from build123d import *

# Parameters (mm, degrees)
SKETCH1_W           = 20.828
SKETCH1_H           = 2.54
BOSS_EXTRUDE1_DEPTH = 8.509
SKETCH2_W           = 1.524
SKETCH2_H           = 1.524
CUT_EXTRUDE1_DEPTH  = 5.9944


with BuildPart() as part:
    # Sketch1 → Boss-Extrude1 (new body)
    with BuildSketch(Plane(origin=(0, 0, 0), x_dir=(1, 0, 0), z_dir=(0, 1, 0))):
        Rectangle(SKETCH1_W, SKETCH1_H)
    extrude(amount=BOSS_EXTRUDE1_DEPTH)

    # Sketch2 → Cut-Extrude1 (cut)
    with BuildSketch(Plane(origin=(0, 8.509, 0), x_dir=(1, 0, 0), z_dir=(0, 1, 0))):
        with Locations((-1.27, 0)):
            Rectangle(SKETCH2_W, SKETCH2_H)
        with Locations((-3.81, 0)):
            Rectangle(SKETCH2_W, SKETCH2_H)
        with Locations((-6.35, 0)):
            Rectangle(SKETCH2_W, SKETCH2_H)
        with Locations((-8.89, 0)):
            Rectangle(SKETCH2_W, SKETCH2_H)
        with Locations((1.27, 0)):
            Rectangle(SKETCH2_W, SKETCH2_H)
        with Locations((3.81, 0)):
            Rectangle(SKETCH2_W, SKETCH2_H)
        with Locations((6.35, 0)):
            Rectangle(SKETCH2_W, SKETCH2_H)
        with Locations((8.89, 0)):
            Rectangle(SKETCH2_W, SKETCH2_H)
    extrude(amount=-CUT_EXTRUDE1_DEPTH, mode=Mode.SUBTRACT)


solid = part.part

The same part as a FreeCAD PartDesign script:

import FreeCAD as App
import Part
import Sketcher

V = App.Vector
Q = App.Units.Quantity

doc = App.newDocument("Part")
body = doc.addObject("PartDesign::Body", "Body")

# Sketch on XZ plane
sketch1 = body.newObject("Sketcher::SketchObject", "Sketch")
sketch1.AttachmentSupport = (doc.getObject("XZ_Plane"), [""])
sketch1.MapMode = "FlatFace"
sketch1.addGeometry(Part.LineSegment(V(-10.4, -1.3, 0), V(-10.4, 1.3, 0)), False)
sketch1.addGeometry(Part.LineSegment(V(-10.4, 1.3, 0), V(10.4, 1.3, 0)), False)
sketch1.addGeometry(Part.LineSegment(V(10.4, 1.3, 0), V(10.4, -1.3, 0)), False)
sketch1.addGeometry(Part.LineSegment(V(10.4, -1.3, 0), V(-10.4, -1.3, 0)), False)
sketch1.addConstraint(Sketcher.Constraint("Coincident", 0, 2, 1, 1))
sketch1.addConstraint(Sketcher.Constraint("Coincident", 1, 2, 2, 1))
sketch1.addConstraint(Sketcher.Constraint("Coincident", 2, 2, 3, 1))
sketch1.addConstraint(Sketcher.Constraint("Coincident", 3, 2, 0, 1))
sketch1.addConstraint(Sketcher.Constraint("Vertical", 0))
sketch1.addConstraint(Sketcher.Constraint("Horizontal", 1))
sketch1.addConstraint(Sketcher.Constraint("Vertical", 2))
sketch1.addConstraint(Sketcher.Constraint("Horizontal", 3))
sketch1.addConstraint(Sketcher.Constraint("Symmetric", 0, 2, 2, 2, -1, 1))
sketch1.addConstraint(Sketcher.Constraint("DistanceY", 0, 1, 0, 2, Q("0.1 in")))
sketch1.addConstraint(Sketcher.Constraint("DistanceX", 1, 1, 1, 2, Q("0.82 in")))
pad1 = body.newObject("PartDesign::Pad", "Pad")
pad1.Profile = sketch1
pad1.Length = Q("0.335 in")
pad1.Reversed = True

# Sketch on XZ plane
sketch2 = body.newObject("Sketcher::SketchObject", "Sketch001")
sketch2.AttachmentSupport = (doc.getObject("XZ_Plane"), [""])
sketch2.MapMode = "FlatFace"
sketch2.AttachmentOffset = App.Placement(V(0, 0, -0.335 * 25.4), App.Rotation())
sketch2.addGeometry(Part.LineSegment(V(-2, -0.8, 0), V(-2, 0.8, 0)), False)
sketch2.addGeometry(Part.LineSegment(V(-2, 0.8, 0), V(-0.5, 0.8, 0)), False)
sketch2.addGeometry(Part.LineSegment(V(-0.5, 0.8, 0), V(-0.5, -0.8, 0)), False)
sketch2.addGeometry(Part.LineSegment(V(-0.5, -0.8, 0), V(-2, -0.8, 0)), False)
sketch2.addGeometry(Part.LineSegment(V(-4.6, -0.8, 0), V(-4.6, 0.8, 0)), False)
sketch2.addGeometry(Part.LineSegment(V(-4.6, 0.8, 0), V(-3, 0.8, 0)), False)
sketch2.addGeometry(Part.LineSegment(V(-3, 0.8, 0), V(-3, -0.8, 0)), False)
sketch2.addGeometry(Part.LineSegment(V(-3, -0.8, 0), V(-4.6, -0.8, 0)), False)
sketch2.addGeometry(Part.LineSegment(V(-7.1, -0.8, 0), V(-7.1, 0.8, 0)), False)
sketch2.addGeometry(Part.LineSegment(V(-7.1, 0.8, 0), V(-5.6, 0.8, 0)), False)
sketch2.addGeometry(Part.LineSegment(V(-5.6, 0.8, 0), V(-5.6, -0.8, 0)), False)
sketch2.addGeometry(Part.LineSegment(V(-5.6, -0.8, 0), V(-7.1, -0.8, 0)), False)
sketch2.addGeometry(Part.LineSegment(V(-9.7, -0.8, 0), V(-9.7, 0.8, 0)), False)
sketch2.addGeometry(Part.LineSegment(V(-9.7, 0.8, 0), V(-8.1, 0.8, 0)), False)
sketch2.addGeometry(Part.LineSegment(V(-8.1, 0.8, 0), V(-8.1, -0.8, 0)), False)
sketch2.addGeometry(Part.LineSegment(V(-8.1, -0.8, 0), V(-9.7, -0.8, 0)), False)
sketch2.addGeometry(Part.LineSegment(V(0.5, -0.8, 0), V(0.5, 0.8, 0)), False)
sketch2.addGeometry(Part.LineSegment(V(0.5, 0.8, 0), V(2, 0.8, 0)), False)
sketch2.addGeometry(Part.LineSegment(V(2, 0.8, 0), V(2, -0.8, 0)), False)
sketch2.addGeometry(Part.LineSegment(V(2, -0.8, 0), V(0.5, -0.8, 0)), False)
sketch2.addGeometry(Part.LineSegment(V(3, -0.8, 0), V(3, 0.8, 0)), False)
sketch2.addGeometry(Part.LineSegment(V(3, 0.8, 0), V(4.6, 0.8, 0)), False)
sketch2.addGeometry(Part.LineSegment(V(4.6, 0.8, 0), V(4.6, -0.8, 0)), False)
sketch2.addGeometry(Part.LineSegment(V(4.6, -0.8, 0), V(3, -0.8, 0)), False)
sketch2.addGeometry(Part.LineSegment(V(5.6, -0.8, 0), V(5.6, 0.8, 0)), False)
sketch2.addGeometry(Part.LineSegment(V(5.6, 0.8, 0), V(7.1, 0.8, 0)), False)
sketch2.addGeometry(Part.LineSegment(V(7.1, 0.8, 0), V(7.1, -0.8, 0)), False)
sketch2.addGeometry(Part.LineSegment(V(7.1, -0.8, 0), V(5.6, -0.8, 0)), False)
sketch2.addGeometry(Part.LineSegment(V(8.1, -0.8, 0), V(8.1, 0.8, 0)), False)
sketch2.addGeometry(Part.LineSegment(V(8.1, 0.8, 0), V(9.7, 0.8, 0)), False)
sketch2.addGeometry(Part.LineSegment(V(9.7, 0.8, 0), V(9.7, -0.8, 0)), False)
sketch2.addGeometry(Part.LineSegment(V(9.7, -0.8, 0), V(8.1, -0.8, 0)), False)
sketch2.addConstraint(Sketcher.Constraint("Coincident", 0, 2, 1, 1))
sketch2.addConstraint(Sketcher.Constraint("Coincident", 1, 2, 2, 1))
sketch2.addConstraint(Sketcher.Constraint("Coincident", 2, 2, 3, 1))
sketch2.addConstraint(Sketcher.Constraint("Coincident", 3, 2, 0, 1))
sketch2.addConstraint(Sketcher.Constraint("Coincident", 4, 2, 5, 1))
sketch2.addConstraint(Sketcher.Constraint("Coincident", 5, 2, 6, 1))
sketch2.addConstraint(Sketcher.Constraint("Coincident", 6, 2, 7, 1))
sketch2.addConstraint(Sketcher.Constraint("Coincident", 7, 2, 4, 1))
sketch2.addConstraint(Sketcher.Constraint("Coincident", 8, 2, 9, 1))
sketch2.addConstraint(Sketcher.Constraint("Coincident", 9, 2, 10, 1))
sketch2.addConstraint(Sketcher.Constraint("Coincident", 10, 2, 11, 1))
sketch2.addConstraint(Sketcher.Constraint("Coincident", 11, 2, 8, 1))
sketch2.addConstraint(Sketcher.Constraint("Coincident", 12, 2, 13, 1))
sketch2.addConstraint(Sketcher.Constraint("Coincident", 13, 2, 14, 1))
sketch2.addConstraint(Sketcher.Constraint("Coincident", 14, 2, 15, 1))
sketch2.addConstraint(Sketcher.Constraint("Coincident", 15, 2, 12, 1))
sketch2.addConstraint(Sketcher.Constraint("Coincident", 16, 2, 17, 1))
sketch2.addConstraint(Sketcher.Constraint("Coincident", 17, 2, 18, 1))
sketch2.addConstraint(Sketcher.Constraint("Coincident", 18, 2, 19, 1))
sketch2.addConstraint(Sketcher.Constraint("Coincident", 19, 2, 16, 1))
sketch2.addConstraint(Sketcher.Constraint("Coincident", 20, 2, 21, 1))
sketch2.addConstraint(Sketcher.Constraint("Coincident", 21, 2, 22, 1))
sketch2.addConstraint(Sketcher.Constraint("Coincident", 22, 2, 23, 1))
sketch2.addConstraint(Sketcher.Constraint("Coincident", 23, 2, 20, 1))
sketch2.addConstraint(Sketcher.Constraint("Coincident", 24, 2, 25, 1))
sketch2.addConstraint(Sketcher.Constraint("Coincident", 25, 2, 26, 1))
sketch2.addConstraint(Sketcher.Constraint("Coincident", 26, 2, 27, 1))
sketch2.addConstraint(Sketcher.Constraint("Coincident", 27, 2, 24, 1))
sketch2.addConstraint(Sketcher.Constraint("Coincident", 28, 2, 29, 1))
sketch2.addConstraint(Sketcher.Constraint("Coincident", 29, 2, 30, 1))
sketch2.addConstraint(Sketcher.Constraint("Coincident", 30, 2, 31, 1))
sketch2.addConstraint(Sketcher.Constraint("Coincident", 31, 2, 28, 1))
sketch2.addConstraint(Sketcher.Constraint("Vertical", 0))
sketch2.addConstraint(Sketcher.Constraint("Horizontal", 1))
sketch2.addConstraint(Sketcher.Constraint("Vertical", 2))
sketch2.addConstraint(Sketcher.Constraint("Horizontal", 3))
sketch2.addConstraint(Sketcher.Constraint("Vertical", 4))
sketch2.addConstraint(Sketcher.Constraint("Horizontal", 5))
sketch2.addConstraint(Sketcher.Constraint("Vertical", 6))
sketch2.addConstraint(Sketcher.Constraint("Horizontal", 7))
sketch2.addConstraint(Sketcher.Constraint("Vertical", 8))
sketch2.addConstraint(Sketcher.Constraint("Horizontal", 9))
sketch2.addConstraint(Sketcher.Constraint("Vertical", 10))
sketch2.addConstraint(Sketcher.Constraint("Horizontal", 11))
sketch2.addConstraint(Sketcher.Constraint("Vertical", 12))
sketch2.addConstraint(Sketcher.Constraint("Horizontal", 13))
sketch2.addConstraint(Sketcher.Constraint("Vertical", 14))
sketch2.addConstraint(Sketcher.Constraint("Horizontal", 15))
sketch2.addConstraint(Sketcher.Constraint("Vertical", 16))
sketch2.addConstraint(Sketcher.Constraint("Horizontal", 17))
sketch2.addConstraint(Sketcher.Constraint("Vertical", 18))
sketch2.addConstraint(Sketcher.Constraint("Horizontal", 19))
sketch2.addConstraint(Sketcher.Constraint("Vertical", 20))
sketch2.addConstraint(Sketcher.Constraint("Horizontal", 21))
sketch2.addConstraint(Sketcher.Constraint("Vertical", 22))
sketch2.addConstraint(Sketcher.Constraint("Horizontal", 23))
sketch2.addConstraint(Sketcher.Constraint("Vertical", 24))
sketch2.addConstraint(Sketcher.Constraint("Horizontal", 25))
sketch2.addConstraint(Sketcher.Constraint("Vertical", 26))
sketch2.addConstraint(Sketcher.Constraint("Horizontal", 27))
sketch2.addConstraint(Sketcher.Constraint("Vertical", 28))
sketch2.addConstraint(Sketcher.Constraint("Horizontal", 29))
sketch2.addConstraint(Sketcher.Constraint("Vertical", 30))
sketch2.addConstraint(Sketcher.Constraint("Horizontal", 31))
sketch2.addConstraint(Sketcher.Constraint("Symmetric", 2, 2, 16, 2, -1, 1))
sketch2.addConstraint(Sketcher.Constraint("Symmetric", 0, 2, 18, 2, -1, 1))
sketch2.addConstraint(Sketcher.Constraint("Symmetric", 6, 2, 20, 2, -1, 1))
sketch2.addConstraint(Sketcher.Constraint("Symmetric", 4, 2, 22, 2, -1, 1))
sketch2.addConstraint(Sketcher.Constraint("Symmetric", 10, 2, 24, 2, -1, 1))
sketch2.addConstraint(Sketcher.Constraint("Symmetric", 8, 2, 26, 2, -1, 1))
sketch2.addConstraint(Sketcher.Constraint("Symmetric", 14, 2, 28, 2, -1, 1))
sketch2.addConstraint(Sketcher.Constraint("Symmetric", 12, 2, 30, 2, -1, 1))
sketch2.addConstraint(Sketcher.Constraint("Horizontal", 1, 2, 4, 2))
sketch2.addConstraint(Sketcher.Constraint("Horizontal", 3, 2, 6, 2))
sketch2.addConstraint(Sketcher.Constraint("Horizontal", 5, 2, 8, 2))
sketch2.addConstraint(Sketcher.Constraint("Horizontal", 7, 2, 10, 2))
sketch2.addConstraint(Sketcher.Constraint("Horizontal", 9, 2, 12, 2))
sketch2.addConstraint(Sketcher.Constraint("Horizontal", 11, 2, 14, 2))
sketch2.addConstraint(Sketcher.Constraint("Horizontal", 13, 2, 16, 2))
sketch2.addConstraint(Sketcher.Constraint("Equal", 3, 5))
sketch2.addConstraint(Sketcher.Constraint("Equal", 7, 9))
sketch2.addConstraint(Sketcher.Constraint("Equal", 11, 13))
sketch2.addConstraint(Sketcher.Constraint("Equal", 31, 0))
sketch2.addConstraint(Sketcher.Constraint("DistanceX", 1, 1, 1, 2, Q("0.06 in")))
sketch2.addConstraint(Sketcher.Constraint("DistanceX", 4, 2, 0, 2, Q("0.1 in")))
sketch2.addConstraint(Sketcher.Constraint("DistanceX", 8, 2, 4, 2, Q("0.1 in")))
sketch2.addConstraint(Sketcher.Constraint("DistanceX", 12, 2, 8, 2, Q("0.1 in")))
sketch2.addConstraint(Sketcher.Constraint("DistanceX", 0, 2, 16, 2, Q("0.1 in")))
pocket1 = body.newObject("PartDesign::Pocket", "Pocket")
pocket1.Profile = sketch2
pocket1.Length = Q("0.236 in")
pocket1.Reversed = True

doc.recompute()
